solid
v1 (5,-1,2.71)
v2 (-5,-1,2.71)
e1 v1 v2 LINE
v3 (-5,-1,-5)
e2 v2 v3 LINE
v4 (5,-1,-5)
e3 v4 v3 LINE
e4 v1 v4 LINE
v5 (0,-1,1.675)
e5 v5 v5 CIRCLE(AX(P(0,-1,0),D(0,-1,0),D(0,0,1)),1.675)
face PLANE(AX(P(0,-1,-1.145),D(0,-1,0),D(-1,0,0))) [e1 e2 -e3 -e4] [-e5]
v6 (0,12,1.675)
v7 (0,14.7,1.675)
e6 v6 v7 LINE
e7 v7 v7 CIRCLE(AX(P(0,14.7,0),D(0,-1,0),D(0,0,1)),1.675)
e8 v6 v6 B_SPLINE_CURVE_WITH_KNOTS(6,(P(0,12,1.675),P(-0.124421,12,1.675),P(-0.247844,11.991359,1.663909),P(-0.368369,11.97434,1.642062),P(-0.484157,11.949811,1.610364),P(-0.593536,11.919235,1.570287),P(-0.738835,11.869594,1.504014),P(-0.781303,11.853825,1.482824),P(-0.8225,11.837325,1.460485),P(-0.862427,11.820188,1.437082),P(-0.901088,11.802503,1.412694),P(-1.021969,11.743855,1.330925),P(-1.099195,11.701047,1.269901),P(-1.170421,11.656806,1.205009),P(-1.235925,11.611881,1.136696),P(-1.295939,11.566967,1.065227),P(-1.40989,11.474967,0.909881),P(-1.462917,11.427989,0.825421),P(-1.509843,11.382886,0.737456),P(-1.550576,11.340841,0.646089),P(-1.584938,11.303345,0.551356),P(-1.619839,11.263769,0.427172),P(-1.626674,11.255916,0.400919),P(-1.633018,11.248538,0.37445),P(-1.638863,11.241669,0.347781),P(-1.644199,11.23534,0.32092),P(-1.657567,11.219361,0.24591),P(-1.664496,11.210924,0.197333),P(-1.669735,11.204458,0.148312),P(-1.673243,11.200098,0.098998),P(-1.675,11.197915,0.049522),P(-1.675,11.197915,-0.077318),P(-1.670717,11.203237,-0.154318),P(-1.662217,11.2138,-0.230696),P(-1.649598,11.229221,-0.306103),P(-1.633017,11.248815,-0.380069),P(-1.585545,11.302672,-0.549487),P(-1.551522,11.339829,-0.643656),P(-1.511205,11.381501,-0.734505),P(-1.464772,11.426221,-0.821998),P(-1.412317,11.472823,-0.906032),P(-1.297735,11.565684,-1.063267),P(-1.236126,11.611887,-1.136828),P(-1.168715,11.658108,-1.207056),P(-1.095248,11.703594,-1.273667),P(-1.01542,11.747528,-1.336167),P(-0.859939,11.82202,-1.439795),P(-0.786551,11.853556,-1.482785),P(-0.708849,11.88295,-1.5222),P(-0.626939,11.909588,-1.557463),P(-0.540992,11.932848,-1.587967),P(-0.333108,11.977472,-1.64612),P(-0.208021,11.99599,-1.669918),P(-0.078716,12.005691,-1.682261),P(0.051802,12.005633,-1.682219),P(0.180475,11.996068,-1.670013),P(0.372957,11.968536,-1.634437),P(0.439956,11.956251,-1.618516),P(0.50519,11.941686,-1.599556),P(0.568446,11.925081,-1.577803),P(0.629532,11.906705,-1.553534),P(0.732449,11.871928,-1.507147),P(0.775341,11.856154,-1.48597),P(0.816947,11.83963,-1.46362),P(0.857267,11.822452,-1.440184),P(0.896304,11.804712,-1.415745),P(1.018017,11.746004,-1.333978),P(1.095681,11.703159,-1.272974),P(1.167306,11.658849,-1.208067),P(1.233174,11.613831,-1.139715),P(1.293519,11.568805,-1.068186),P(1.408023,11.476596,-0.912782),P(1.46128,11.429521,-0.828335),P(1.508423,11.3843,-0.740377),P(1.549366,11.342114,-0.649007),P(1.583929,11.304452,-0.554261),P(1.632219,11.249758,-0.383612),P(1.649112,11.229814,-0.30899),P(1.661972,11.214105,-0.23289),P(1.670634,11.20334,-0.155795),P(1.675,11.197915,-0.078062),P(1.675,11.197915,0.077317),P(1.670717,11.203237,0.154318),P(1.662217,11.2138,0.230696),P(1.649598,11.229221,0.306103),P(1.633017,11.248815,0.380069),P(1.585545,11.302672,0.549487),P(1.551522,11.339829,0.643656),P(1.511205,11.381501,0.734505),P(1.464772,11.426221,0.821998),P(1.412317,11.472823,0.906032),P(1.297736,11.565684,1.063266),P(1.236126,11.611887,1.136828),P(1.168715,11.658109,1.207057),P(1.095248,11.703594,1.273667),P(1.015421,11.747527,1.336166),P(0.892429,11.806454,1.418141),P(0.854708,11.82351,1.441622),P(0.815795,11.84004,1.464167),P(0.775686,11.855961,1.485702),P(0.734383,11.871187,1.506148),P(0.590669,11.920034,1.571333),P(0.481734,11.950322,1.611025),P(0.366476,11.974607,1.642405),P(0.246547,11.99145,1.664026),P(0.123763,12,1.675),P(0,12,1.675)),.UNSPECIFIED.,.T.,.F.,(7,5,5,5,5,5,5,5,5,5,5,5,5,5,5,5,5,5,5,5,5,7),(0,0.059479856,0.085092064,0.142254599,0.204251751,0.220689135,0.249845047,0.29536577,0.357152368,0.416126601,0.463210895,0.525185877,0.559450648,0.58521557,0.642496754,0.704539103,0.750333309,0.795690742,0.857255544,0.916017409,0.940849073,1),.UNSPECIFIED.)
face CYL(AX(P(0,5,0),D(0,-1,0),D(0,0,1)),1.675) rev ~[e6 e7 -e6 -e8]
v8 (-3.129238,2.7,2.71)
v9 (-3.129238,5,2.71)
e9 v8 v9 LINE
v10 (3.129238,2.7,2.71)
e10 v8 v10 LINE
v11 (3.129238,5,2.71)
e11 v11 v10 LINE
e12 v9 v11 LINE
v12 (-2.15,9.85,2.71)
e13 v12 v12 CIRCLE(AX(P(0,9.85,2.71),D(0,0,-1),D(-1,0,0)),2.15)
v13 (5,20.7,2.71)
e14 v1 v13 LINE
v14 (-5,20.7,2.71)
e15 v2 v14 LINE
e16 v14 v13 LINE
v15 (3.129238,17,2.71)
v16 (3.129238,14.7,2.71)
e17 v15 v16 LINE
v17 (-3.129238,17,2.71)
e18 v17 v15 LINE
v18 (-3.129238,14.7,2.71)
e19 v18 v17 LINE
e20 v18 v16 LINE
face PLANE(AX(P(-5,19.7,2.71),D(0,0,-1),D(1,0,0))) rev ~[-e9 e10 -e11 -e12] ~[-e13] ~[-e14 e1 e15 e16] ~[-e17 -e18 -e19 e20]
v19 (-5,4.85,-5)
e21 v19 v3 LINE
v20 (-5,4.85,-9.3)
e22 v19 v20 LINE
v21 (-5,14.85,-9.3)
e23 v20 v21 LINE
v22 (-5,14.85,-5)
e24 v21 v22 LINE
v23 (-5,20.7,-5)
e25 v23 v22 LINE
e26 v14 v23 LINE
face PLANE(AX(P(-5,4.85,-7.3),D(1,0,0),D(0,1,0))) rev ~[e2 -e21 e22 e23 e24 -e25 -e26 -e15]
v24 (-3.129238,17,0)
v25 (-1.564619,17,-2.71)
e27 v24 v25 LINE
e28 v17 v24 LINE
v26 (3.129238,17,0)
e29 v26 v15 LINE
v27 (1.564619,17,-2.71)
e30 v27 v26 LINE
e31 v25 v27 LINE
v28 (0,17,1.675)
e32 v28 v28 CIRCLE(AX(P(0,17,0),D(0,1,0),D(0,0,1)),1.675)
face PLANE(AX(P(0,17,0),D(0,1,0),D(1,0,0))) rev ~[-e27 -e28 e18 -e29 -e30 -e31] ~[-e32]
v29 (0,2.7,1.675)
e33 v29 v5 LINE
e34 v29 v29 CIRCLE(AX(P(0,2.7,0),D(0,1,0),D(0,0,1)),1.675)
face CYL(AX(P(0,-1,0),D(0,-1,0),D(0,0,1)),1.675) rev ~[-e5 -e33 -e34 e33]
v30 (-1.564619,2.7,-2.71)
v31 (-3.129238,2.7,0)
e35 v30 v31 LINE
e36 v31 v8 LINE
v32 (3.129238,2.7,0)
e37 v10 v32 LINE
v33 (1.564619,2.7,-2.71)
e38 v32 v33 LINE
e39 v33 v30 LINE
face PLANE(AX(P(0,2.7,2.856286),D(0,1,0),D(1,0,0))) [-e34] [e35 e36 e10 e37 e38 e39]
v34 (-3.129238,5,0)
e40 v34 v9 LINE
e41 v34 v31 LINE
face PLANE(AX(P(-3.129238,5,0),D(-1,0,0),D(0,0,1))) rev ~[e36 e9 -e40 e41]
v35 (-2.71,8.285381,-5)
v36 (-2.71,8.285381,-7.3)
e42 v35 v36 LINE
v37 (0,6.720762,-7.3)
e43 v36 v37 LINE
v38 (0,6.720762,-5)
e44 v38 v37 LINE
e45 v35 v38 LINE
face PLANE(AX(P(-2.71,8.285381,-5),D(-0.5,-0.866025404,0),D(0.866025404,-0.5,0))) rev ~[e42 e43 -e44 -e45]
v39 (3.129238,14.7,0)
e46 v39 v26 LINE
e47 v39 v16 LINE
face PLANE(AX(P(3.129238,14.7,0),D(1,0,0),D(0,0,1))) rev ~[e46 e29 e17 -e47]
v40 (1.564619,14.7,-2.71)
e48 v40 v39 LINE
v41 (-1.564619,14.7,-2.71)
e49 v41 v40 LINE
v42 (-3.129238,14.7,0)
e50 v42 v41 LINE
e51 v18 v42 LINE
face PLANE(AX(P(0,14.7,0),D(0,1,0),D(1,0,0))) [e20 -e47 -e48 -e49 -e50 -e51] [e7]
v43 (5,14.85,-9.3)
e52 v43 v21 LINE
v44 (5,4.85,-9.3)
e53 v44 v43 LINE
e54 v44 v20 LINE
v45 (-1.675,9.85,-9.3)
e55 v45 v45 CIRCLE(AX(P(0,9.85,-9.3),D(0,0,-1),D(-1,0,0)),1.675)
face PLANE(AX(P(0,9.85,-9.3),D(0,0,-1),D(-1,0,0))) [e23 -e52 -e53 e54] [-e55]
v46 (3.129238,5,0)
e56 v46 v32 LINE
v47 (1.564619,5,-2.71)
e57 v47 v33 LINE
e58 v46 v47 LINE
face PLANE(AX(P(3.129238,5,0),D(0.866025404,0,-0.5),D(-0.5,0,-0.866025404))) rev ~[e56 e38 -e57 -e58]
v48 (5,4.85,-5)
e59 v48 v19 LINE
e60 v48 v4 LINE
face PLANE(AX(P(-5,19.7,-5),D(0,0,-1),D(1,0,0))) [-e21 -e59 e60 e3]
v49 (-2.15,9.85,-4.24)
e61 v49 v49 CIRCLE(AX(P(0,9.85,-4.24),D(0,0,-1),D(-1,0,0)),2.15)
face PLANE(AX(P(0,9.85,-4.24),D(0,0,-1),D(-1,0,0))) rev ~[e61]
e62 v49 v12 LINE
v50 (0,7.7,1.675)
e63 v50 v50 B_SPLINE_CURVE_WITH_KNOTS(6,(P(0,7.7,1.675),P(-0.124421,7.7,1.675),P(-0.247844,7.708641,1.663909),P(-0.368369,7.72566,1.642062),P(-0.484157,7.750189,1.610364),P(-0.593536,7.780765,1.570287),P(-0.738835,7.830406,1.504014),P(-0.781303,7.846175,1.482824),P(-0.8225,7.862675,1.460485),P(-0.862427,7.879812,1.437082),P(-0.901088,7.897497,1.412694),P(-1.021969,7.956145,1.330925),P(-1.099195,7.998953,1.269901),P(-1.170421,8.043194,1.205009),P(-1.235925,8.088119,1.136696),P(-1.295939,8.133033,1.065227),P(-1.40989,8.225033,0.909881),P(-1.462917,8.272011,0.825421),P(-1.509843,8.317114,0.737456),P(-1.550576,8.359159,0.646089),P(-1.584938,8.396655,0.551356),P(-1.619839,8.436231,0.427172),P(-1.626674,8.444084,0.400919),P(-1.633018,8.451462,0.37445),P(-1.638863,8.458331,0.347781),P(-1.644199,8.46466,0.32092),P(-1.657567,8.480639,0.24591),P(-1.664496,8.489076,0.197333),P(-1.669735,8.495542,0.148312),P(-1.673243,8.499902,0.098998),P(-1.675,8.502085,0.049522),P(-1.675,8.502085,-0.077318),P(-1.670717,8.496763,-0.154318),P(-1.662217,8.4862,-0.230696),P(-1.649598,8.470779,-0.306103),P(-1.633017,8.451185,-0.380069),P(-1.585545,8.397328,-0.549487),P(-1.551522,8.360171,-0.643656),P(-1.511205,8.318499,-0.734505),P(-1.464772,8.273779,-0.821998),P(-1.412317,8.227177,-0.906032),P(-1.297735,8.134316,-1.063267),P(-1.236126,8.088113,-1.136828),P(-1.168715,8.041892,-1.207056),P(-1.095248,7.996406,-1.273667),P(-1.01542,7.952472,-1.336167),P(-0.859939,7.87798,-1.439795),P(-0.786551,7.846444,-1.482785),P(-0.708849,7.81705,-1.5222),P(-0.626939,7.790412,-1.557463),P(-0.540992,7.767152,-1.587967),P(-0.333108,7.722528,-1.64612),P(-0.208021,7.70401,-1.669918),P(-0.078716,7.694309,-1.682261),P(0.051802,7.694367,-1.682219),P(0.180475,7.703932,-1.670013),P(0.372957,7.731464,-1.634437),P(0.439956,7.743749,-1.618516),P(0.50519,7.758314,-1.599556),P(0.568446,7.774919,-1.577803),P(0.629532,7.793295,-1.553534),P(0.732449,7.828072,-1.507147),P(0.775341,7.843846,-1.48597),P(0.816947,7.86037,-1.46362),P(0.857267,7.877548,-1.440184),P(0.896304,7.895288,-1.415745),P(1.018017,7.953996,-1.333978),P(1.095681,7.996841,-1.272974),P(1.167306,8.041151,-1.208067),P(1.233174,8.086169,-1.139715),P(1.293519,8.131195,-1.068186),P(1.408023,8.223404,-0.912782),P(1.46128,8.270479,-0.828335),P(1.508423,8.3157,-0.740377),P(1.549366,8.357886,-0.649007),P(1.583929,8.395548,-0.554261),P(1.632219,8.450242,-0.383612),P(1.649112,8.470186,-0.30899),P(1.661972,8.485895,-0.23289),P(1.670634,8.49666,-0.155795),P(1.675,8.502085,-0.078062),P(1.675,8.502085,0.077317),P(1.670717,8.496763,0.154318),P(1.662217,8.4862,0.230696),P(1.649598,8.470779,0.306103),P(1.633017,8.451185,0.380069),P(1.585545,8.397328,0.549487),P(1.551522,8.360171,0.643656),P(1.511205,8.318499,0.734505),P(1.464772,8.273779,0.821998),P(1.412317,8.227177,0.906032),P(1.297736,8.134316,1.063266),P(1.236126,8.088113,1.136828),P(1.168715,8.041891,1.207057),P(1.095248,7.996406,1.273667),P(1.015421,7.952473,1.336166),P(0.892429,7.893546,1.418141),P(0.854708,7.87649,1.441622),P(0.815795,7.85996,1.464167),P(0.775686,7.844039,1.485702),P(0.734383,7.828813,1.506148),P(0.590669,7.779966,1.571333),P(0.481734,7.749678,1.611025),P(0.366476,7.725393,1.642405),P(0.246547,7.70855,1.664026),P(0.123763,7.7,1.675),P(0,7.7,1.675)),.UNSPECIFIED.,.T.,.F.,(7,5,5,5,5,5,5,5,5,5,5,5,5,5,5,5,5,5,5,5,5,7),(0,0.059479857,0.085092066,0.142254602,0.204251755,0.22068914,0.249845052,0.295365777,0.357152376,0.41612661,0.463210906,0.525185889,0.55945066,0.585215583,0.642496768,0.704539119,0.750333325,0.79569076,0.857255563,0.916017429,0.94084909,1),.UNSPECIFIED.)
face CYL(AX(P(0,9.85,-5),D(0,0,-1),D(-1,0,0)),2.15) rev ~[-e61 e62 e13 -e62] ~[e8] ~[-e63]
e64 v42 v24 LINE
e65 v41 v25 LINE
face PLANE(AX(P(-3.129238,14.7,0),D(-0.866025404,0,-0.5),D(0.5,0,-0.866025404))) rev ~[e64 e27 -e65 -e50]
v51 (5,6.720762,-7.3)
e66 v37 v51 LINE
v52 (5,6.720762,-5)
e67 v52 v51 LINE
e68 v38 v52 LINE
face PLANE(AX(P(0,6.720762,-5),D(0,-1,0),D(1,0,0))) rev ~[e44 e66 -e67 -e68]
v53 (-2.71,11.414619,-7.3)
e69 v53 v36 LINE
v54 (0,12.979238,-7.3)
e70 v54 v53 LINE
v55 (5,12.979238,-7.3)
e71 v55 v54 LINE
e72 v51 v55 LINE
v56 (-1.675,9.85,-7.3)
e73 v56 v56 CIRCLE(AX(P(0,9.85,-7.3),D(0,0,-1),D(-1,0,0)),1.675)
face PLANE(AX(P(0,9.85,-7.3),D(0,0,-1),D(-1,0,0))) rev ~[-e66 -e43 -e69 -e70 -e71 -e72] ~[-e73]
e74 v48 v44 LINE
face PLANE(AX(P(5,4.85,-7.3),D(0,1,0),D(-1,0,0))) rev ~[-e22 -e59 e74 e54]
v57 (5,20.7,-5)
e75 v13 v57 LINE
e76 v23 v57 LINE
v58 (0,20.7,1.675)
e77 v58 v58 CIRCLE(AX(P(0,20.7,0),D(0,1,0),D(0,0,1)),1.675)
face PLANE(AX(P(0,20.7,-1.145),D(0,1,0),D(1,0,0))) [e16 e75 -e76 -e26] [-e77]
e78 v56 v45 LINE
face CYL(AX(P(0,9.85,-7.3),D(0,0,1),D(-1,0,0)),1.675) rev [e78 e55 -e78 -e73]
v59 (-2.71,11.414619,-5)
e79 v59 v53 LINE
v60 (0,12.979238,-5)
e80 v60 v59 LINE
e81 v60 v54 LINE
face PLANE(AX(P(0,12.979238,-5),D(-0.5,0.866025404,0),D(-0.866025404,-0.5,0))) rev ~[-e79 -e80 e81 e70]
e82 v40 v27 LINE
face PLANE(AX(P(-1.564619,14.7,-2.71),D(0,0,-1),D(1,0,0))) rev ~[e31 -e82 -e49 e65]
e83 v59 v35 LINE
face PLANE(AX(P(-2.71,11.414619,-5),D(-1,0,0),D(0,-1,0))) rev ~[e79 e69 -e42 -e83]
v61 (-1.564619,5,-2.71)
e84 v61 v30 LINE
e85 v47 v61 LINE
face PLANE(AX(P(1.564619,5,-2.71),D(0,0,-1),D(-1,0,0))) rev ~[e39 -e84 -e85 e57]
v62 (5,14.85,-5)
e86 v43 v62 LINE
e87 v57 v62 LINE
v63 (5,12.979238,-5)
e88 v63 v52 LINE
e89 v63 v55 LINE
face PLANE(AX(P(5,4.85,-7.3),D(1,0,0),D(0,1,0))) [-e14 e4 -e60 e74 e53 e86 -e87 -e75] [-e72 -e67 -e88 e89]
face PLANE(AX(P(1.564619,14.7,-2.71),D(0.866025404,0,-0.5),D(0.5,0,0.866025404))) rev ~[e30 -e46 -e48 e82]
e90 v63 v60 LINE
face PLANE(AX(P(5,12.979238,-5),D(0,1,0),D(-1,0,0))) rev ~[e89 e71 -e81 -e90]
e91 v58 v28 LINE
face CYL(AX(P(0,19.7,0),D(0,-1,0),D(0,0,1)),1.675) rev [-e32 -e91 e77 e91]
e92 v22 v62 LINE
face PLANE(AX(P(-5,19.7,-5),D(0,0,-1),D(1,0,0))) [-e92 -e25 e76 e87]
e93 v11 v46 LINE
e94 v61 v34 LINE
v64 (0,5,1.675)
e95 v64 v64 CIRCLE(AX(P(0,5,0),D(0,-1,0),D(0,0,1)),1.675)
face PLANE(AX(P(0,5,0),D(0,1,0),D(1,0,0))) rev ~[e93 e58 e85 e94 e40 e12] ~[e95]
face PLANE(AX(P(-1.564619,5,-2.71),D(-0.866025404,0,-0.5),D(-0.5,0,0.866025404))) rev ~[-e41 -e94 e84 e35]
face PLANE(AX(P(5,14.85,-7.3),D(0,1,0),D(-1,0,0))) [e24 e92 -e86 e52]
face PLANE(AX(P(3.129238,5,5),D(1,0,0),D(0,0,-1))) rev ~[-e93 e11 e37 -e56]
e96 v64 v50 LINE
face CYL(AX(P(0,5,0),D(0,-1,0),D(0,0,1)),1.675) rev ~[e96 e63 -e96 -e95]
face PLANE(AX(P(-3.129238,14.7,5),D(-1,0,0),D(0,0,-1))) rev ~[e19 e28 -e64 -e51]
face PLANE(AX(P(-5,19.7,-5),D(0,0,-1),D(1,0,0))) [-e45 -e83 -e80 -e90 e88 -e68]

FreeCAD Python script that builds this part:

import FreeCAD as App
import Part
import Sketcher
Q = App.Units.Quantity


def add_polygon(sketch, points):
    """Adds a closed chain of lines whose ends are joined by coincident constraints."""
    first, n = sketch.GeometryCount, len(points)
    for a, b in zip(points, points[1:] + points[:1]):
        sketch.addGeometry(Part.LineSegment(App.Vector(*a, 0), App.Vector(*b, 0)), False)
    for i in range(n):
        sketch.addConstraint(Sketcher.Constraint("Coincident", first + i, 2, first + (i + 1) % n, 1))

doc = App.newDocument("Part")
params = doc.addObject("Spreadsheet::Sheet", "Params")
for row, (alias, value) in enumerate([
    ("sketch1_width", "10 mm"),
    ("pad1_length", "5 mm"),
    ("sketch2_diameter", "3.35 mm"),
    ("sketch3_diameter", "3.35 mm"),
    ("sketch3_height", "5 mm"),
    ("pocket2_length", "2.3 mm"),
    ("sketch4_width", "10 mm"),
    ("pad2_length", "2.7 mm"),
    ("sketch5_width", "10 mm"),
    ("pad3_length", "7 mm"),
    ("sketch6_diameter", "4.3 mm"),
    ("sketch7_diameter", "3.35 mm"),
    ("sketch8_width", "10 mm"),
    ("pad4_length", "2.3 mm"),
    ("sketch9_width", "10 mm"),
    ("pad5_length", "2.7 mm"),
    ("sketch10_diameter", "3.35 mm"),
    ("pocket5_length", "2.7 mm"),
    ("sketch11_width", "10 mm"),
    ("sketch11_height", "19.7 mm"),
    ("pocket6_length", "2.29 mm"),
    ("sketch12_diameter", "3.35 mm"),
    ("sketch12_width", "10 mm"),
    ("sketch12_height", "7.71 mm"),
    ("pad6_length", "1 mm"),
    ("sketch13_diameter", "3.35 mm"),
    ("sketch13_width", "10 mm"),
    ("sketch13_height", "7.71 mm"),
    ("pad7_length", "1 mm"),
    ("sketch14_diameter", "4.3 mm"),
    ("pad8_length", "0.76 mm"),
    ("sketch15_width", "5 mm"),
    ("sketch15_width2", "10 mm"),
    ("pad9_length", "2.3 mm"),
    ("sketch16_diameter", "3.35 mm"),
    ("sketch16_width", "10 mm"),
    ("pad10_length", "2 mm"),
], start=1):
    params.set(f"A{row}", alias)
    params.set(f"B{row}", "=" + value)
    params.setAlias(f"B{row}", alias)

body = doc.addObject("PartDesign::Body", "Body")

# Sketch on XZ plane
sketch1 = body.newObject("Sketcher::SketchObject", "Sketch")
sketch1.AttachmentSupport = (doc.getObject("XZ_Plane"), [""])
sketch1.MapMode = "FlatFace"
add_polygon(sketch1, [(-5, -5), (-5, 5), (5, 5), (5, -5)])  # lines 0-3
sketch1.addConstraint(Sketcher.Constraint("Vertical", 0))
sketch1.addConstraint(Sketcher.Constraint("Horizontal", 1))
sketch1.addConstraint(Sketcher.Constraint("Vertical", 2))
sketch1.addConstraint(Sketcher.Constraint("Horizontal", 3))
sketch1.addConstraint(Sketcher.Constraint("Symmetric", 0, 2, 2, 2, -1, 1))
sketch1.addConstraint(Sketcher.Constraint("Equal", 3, 0))
sketch1.addConstraint(Sketcher.Constraint("DistanceX", 1, 1, 1, 2, 10.0))
sketch1.setExpression("Constraints[10]", "Params.sketch1_width")
pad1 = body.newObject("PartDesign::Pad", "Pad")
pad1.Profile = sketch1
pad1.setExpression("Length", "Params.pad1_length")
pad1.Reversed = True

# Sketch on XZ plane
sketch2 = body.newObject("Sketcher::SketchObject", "Sketch001")
sketch2.AttachmentSupport = (doc.getObject("XZ_Plane"), [""])
sketch2.MapMode = "FlatFace"
sketch2.AttachmentOffset = App.Placement(App.Vector(0, 0, -5), App.Rotation())
sketch2.addGeometry(Part.Circle(App.Vector(0, 0, 0), App.Vector(0, 0, 1), 1.7), False)
sketch2.addConstraint(Sketcher.Constraint("Coincident", 0, 3, -1, 1))
sketch2.addConstraint(Sketcher.Constraint("Diameter", 0, 3.35))
sketch2.setExpression("Constraints[1]", "Params.sketch2_diameter")
pocket1 = body.newObject("PartDesign::Pocket", "Pocket")
pocket1.Profile = sketch2
pocket1.Type = "ThroughAll"
pocket1.Midplane = True

# Sketch on XZ plane
sketch3 = body.newObject("Sketcher::SketchObject", "Sketch002")
sketch3.AttachmentSupport = (doc.getObject("XZ_Plane"), [""])
sketch3.MapMode = "FlatFace"
sketch3.AttachmentOffset = App.Placement(App.Vector(0, 0, -5), App.Rotation())
add_polygon(sketch3, [(-1.6, -2.7), (-3.1, 0), (-3.1, 5), (3.1, 5), (3.1, 0), (1.6, -2.7)])  # lines 0-5
sketch3.addGeometry(Part.Circle(App.Vector(0, 0, 0), App.Vector(0, 0, 1), 1.7), False)  # 6
sketch3.addConstraint(Sketcher.Constraint("Vertical", 1))
sketch3.addConstraint(Sketcher.Constraint("Horizontal", 2))
sketch3.addConstraint(Sketcher.Constraint("Vertical", 3))
sketch3.addConstraint(Sketcher.Constraint("Horizontal", 5))
sketch3.addConstraint(Sketcher.Constraint("Coincident", 6, 3, -1, 1))
sketch3.addConstraint(Sketcher.Constraint("Symmetric", 0, 2, 3, 2, -1, 1))
sketch3.addConstraint(Sketcher.Constraint("PointOnObject", 0, 2, -1))
sketch3.addConstraint(Sketcher.Constraint("Equal", 0, 4))
sketch3.addConstraint(Sketcher.Constraint("Diameter", 6, 3.35))
sketch3.addConstraint(Sketcher.Constraint("DistanceY", 1, 1, 1, 2, 5.0))
sketch3.addConstraint(Sketcher.Constraint("Angle", 0, Q("120 deg")))
sketch3.addConstraint(Sketcher.Constraint("DistanceY", 4, 2, -1, 1, 2.71))
sketch3.addConstraint(Sketcher.Constraint("DistanceX", 5, 2, 5, 1, 3.129238))
sketch3.setExpression("Constraints[14]", "Params.sketch3_diameter")
sketch3.setExpression("Constraints[15]", "Params.sketch3_height")
pocket2 = body.newObject("PartDesign::Pocket", "Pocket001")
pocket2.Profile = sketch3
pocket2.setExpression("Length", "Params.pocket2_length")
pocket2.Reversed = True

# Sketch on XZ plane
sketch4 = body.newObject("Sketcher::SketchObject", "Sketch003")
sketch4.AttachmentSupport = (doc.getObject("XZ_Plane"), [""])
sketch4.MapMode = "FlatFace"
sketch4.AttachmentOffset = App.Placement(App.Vector(0, 0, -5), App.Rotation())
add_polygon(sketch4, [(-5, -5), (-5, 5), (5, 5), (5, -5)])  # lines 0-3
sketch4.addConstraint(Sketcher.Constraint("Vertical", 0))
sketch4.addConstraint(Sketcher.Constraint("Horizontal", 1))
sketch4.addConstraint(Sketcher.Constraint("Vertical", 2))
sketch4.addConstraint(Sketcher.Constraint("Horizontal", 3))
sketch4.addConstraint(Sketcher.Constraint("Symmetric", 0, 2, 2, 2, -1, 1))
sketch4.addConstraint(Sketcher.Constraint("Equal", 3, 0))
sketch4.addConstraint(Sketcher.Constraint("DistanceX", 1, 1, 1, 2, 10.0))
sketch4.setExpression("Constraints[10]", "Params.sketch4_width")
pad2 = body.newObject("PartDesign::Pad", "Pad001")
pad2.Profile = sketch4
pad2.setExpression("Length", "Params.pad2_length")
pad2.Reversed = True

# Sketch on XZ plane
sketch5 = body.newObject("Sketcher::SketchObject", "Sketch004")
sketch5.AttachmentSupport = (doc.getObject("XZ_Plane"), [""])
sketch5.MapMode = "FlatFace"
sketch5.AttachmentOffset = App.Placement(App.Vector(0, 0, -7.7), App.Rotation())
add_polygon(sketch5, [(-5, -5), (-5, 5), (5, 5), (5, -5)])  # lines 0-3
sketch5.addConstraint(Sketcher.Constraint("Vertical", 0))
sketch5.addConstraint(Sketcher.Constraint("Horizontal", 1))
sketch5.addConstraint(Sketcher.Constraint("Vertical", 2))
sketch5.addConstraint(Sketcher.Constraint("Horizontal", 3))
sketch5.addConstraint(Sketcher.Constraint("Symmetric", 0, 2, 2, 2, -1, 1))
sketch5.addConstraint(Sketcher.Constraint("Equal", 3, 0))
sketch5.addConstraint(Sketcher.Constraint("DistanceX", 1, 1, 1, 2, 10.0))
sketch5.setExpression("Constraints[10]", "Params.sketch5_width")
pad3 = body.newObject("PartDesign::Pad", "Pad002")
pad3.Profile = sketch5
pad3.setExpression("Length", "Params.pad3_length")
pad3.Reversed = True

# Sketch on XY plane
sketch6 = body.newObject("Sketcher::SketchObject", "Sketch005")
sketch6.AttachmentSupport = (doc.getObject("XY_Plane"), [""])
sketch6.MapMode = "FlatFace"
sketch6.AttachmentOffset = App.Placement(App.Vector(0, 0, -5), App.Rotation())
sketch6.addGeometry(Part.Circle(App.Vector(0, 9.8, 0), App.Vector(0, 0, 1), 2.1), False)
sketch6.addConstraint(Sketcher.Constraint("PointOnObject", 0, 3, -2))
sketch6.addConstraint(Sketcher.Constraint("Diameter", 0, 4.3))
sketch6.addConstraint(Sketcher.Constraint("DistanceY", -1, 1, 0, 3, 9.85))
sketch6.setExpression("Constraints[1]", "Params.sketch6_diameter")
pocket3 = body.newObject("PartDesign::Pocket", "Pocket002")
pocket3.Profile = sketch6
pocket3.Type = "ThroughAll"
pocket3.Reversed = True

# Sketch on XZ plane
sketch7 = body.newObject("Sketcher::SketchObject", "Sketch006")
sketch7.AttachmentSupport = (doc.getObject("XZ_Plane"), [""])
sketch7.MapMode = "FlatFace"
sketch7.AttachmentOffset = App.Placement(App.Vector(0, 0, -5), App.Rotation())
sketch7.addGeometry(Part.Circle(App.Vector(0, 0, 0), App.Vector(0, 0, 1), 1.7), False)
sketch7.addConstraint(Sketcher.Constraint("Coincident", 0, 3, -1, 1))
sketch7.addConstraint(Sketcher.Constraint("Diameter", 0, 3.35))
sketch7.setExpression("Constraints[1]", "Params.sketch7_diameter")
pocket4 = body.newObject("PartDesign::Pocket", "Pocket003")
pocket4.Profile = sketch7
pocket4.Type = "ThroughAll"

# Sketch on XZ plane
sketch8 = body.newObject("Sketcher::SketchObject", "Sketch007")
sketch8.AttachmentSupport = (doc.getObject("XZ_Plane"), [""])
sketch8.MapMode = "FlatFace"
sketch8.AttachmentOffset = App.Placement(App.Vector(0, 0, -14.7), App.Rotation())
add_polygon(sketch8, [(1.6, -2.7), (3.1, 0), (3.1, 5), (5, 5), (5, -5), (-5, -5), (-5, 5), (-3.1, 5), (-3.1, 0), (-1.6, -2.7)])  # lines 0-9
sketch8.addConstraint(Sketcher.Constraint("Vertical", 1))
sketch8.addConstraint(Sketcher.Constraint("Horizontal", 2))
sketch8.addConstraint(Sketcher.Constraint("Vertical", 3))
sketch8.addConstraint(Sketcher.Constraint("Horizontal", 4))
sketch8.addConstraint(Sketcher.Constraint("Vertical", 5))
sketch8.addConstraint(Sketcher.Constraint("Horizontal", 6))
sketch8.addConstraint(Sketcher.Constraint("Vertical", 7))
sketch8.addConstraint(Sketcher.Constraint("Horizontal", 9))
sketch8.addConstraint(Sketcher.Constraint("Symmetric", 2, 2, 4, 2, -1, 1))
sketch8.addConstraint(Sketcher.Constraint("Symmetric", 0, 2, 7, 2, -1, 1))
sketch8.addConstraint(Sketcher.Constraint("PointOnObject", 0, 2, -1))
sketch8.addConstraint(Sketcher.Constraint("Horizontal", 2, 2, 5, 2))
sketch8.addConstraint(Sketcher.Constraint("Equal", 4, 3))
sketch8.addConstraint(Sketcher.Constraint("Equal", 0, 8))
sketch8.addConstraint(Sketcher.Constraint("DistanceX", 4, 2, 4, 1, 10.0))
sketch8.addConstraint(Sketcher.Constraint("Angle", 0, Q("60 deg")))
sketch8.addConstraint(Sketcher.Constraint("DistanceY", 8, 2, -1, 1, 2.71))
sketch8.addConstraint(Sketcher.Constraint("DistanceX", 2, 1, 2, 2, 1.870762))
sketch8.setExpression("Constraints[24]", "Params.sketch8_width")
pad4 = body.newObject("PartDesign::Pad", "Pad003")
pad4.Profile = sketch8
pad4.setExpression("Length", "Params.pad4_length")
pad4.Reversed = True

# Sketch on XZ plane
sketch9 = body.newObject("Sketcher::SketchObject", "Sketch008")
sketch9.AttachmentSupport = (doc.getObject("XZ_Plane"), [""])
sketch9.MapMode = "FlatFace"
sketch9.AttachmentOffset = App.Placement(App.Vector(0, 0, -17), App.Rotation())
add_polygon(sketch9, [(-5, -5), (-5, 5), (5, 5), (5, -5)])  # lines 0-3
sketch9.addConstraint(Sketcher.Constraint("Vertical", 0))
sketch9.addConstraint(Sketcher.Constraint("Horizontal", 1))
sketch9.addConstraint(Sketcher.Constraint("Vertical", 2))
sketch9.addConstraint(Sketcher.Constraint("Horizontal", 3))
sketch9.addConstraint(Sketcher.Constraint("Symmetric", 0, 2, 2, 2, -1, 1))
sketch9.addConstraint(Sketcher.Constraint("Equal", 3, 0))
sketch9.addConstraint(Sketcher.Constraint("DistanceX", 1, 1, 1, 2, 10.0))
sketch9.setExpression("Constraints[10]", "Params.sketch9_width")
pad5 = body.newObject("PartDesign::Pad", "Pad004")
pad5.Profile = sketch9
pad5.setExpression("Length", "Params.pad5_length")
pad5.Reversed = True

# Sketch on XZ plane
sketch10 = body.newObject("Sketcher::SketchObject", "Sketch009")
sketch10.AttachmentSupport = (doc.getObject("XZ_Plane"), [""])
sketch10.MapMode = "FlatFace"
sketch10.AttachmentOffset = App.Placement(App.Vector(0, 0, -17), App.Rotation())
sketch10.addGeometry(Part.Circle(App.Vector(0, 0, 0), App.Vector(0, 0, 1), 1.7), False)
sketch10.addConstraint(Sketcher.Constraint("Coincident", 0, 3, -1, 1))
sketch10.addConstraint(Sketcher.Constraint("Diameter", 0, 3.35))
sketch10.setExpression("Constraints[1]", "Params.sketch10_diameter")
pocket5 = body.newObject("PartDesign::Pocket", "Pocket004")
pocket5.Profile = sketch10
pocket5.setExpression("Length", "Params.pocket5_length")

# Sketch on XY plane
sketch11 = body.newObject("Sketcher::SketchObject", "Sketch010")
sketch11.AttachmentSupport = (doc.getObject("XY_Plane"), [""])
sketch11.MapMode = "FlatFace"
sketch11.AttachmentOffset = App.Placement(App.Vector(0, 0, 5), App.Rotation())
add_polygon(sketch11, [(-5, 20), (-5, 0), (5, 0), (5, 20)])  # lines 0-3
sketch11.addConstraint(Sketcher.Constraint("Vertical", 0))
sketch11.addConstraint(Sketcher.Constraint("Horizontal", 1))
sketch11.addConstraint(Sketcher.Constraint("Vertical", 2))
sketch11.addConstraint(Sketcher.Constraint("Horizontal", 3))
sketch11.addConstraint(Sketcher.Constraint("Symmetric", 0, 2, 1, 2, -1, 1))
sketch11.addConstraint(Sketcher.Constraint("DistanceX", 1, 1, 1, 2, 10.0))
sketch11.addConstraint(Sketcher.Constraint("DistanceY", 0, 2, 0, 1, 19.7))
sketch11.setExpression("Constraints[9]", "Params.sketch11_width")
sketch11.setExpression("Constraints[10]", "Params.sketch11_height")
pocket6 = body.newObject("PartDesign::Pocket", "Pocket005")
pocket6.Profile = sketch11
pocket6.setExpression("Length", "Params.pocket6_length")

# Sketch on XZ plane
sketch12 = body.newObject("Sketcher::SketchObject", "Sketch011")
sketch12.AttachmentSupport = (doc.getObject("XZ_Plane"), [""])
sketch12.MapMode = "FlatFace"
sketch12.AttachmentOffset = App.Placement(App.Vector(0, 0, 1), App.Rotation())
add_polygon(sketch12, [(5, -5), (5, 2.7), (-5, 2.7), (-5, -5)])  # lines 0-3
sketch12.addGeometry(Part.Circle(App.Vector(0, 0, 0), App.Vector(0, 0, 1), 1.7), False)  # 4
sketch12.addConstraint(Sketcher.Constraint("Vertical", 0))
sketch12.addConstraint(Sketcher.Constraint("Horizontal", 1))
sketch12.addConstraint(Sketcher.Constraint("Vertical", 2))
sketch12.addConstraint(Sketcher.Constraint("Horizontal", 3))
sketch12.addConstraint(Sketcher.Constraint("Coincident", 4, 3, -1, 1))
sketch12.addConstraint(Sketcher.Constraint("Diameter", 4, 3.35))
sketch12.addConstraint(Sketcher.Constraint("DistanceX", 1, 2, 1, 1, 10.0))
sketch12.addConstraint(Sketcher.Constraint("DistanceX", -1, 1, 0, 2, 5.0))
sketch12.addConstraint(Sketcher.Constraint("DistanceY", 2, 2, -1, 1, 5.0))
sketch12.addConstraint(Sketcher.Constraint("DistanceY", 0, 1, 0, 2, 7.71))
sketch12.setExpression("Constraints[9]", "Params.sketch12_diameter")
sketch12.setExpression("Constraints[10]", "Params.sketch12_width")
sketch12.setExpression("Constraints[13]", "Params.sketch12_height")
pad6 = body.newObject("PartDesign::Pad", "Pad005")
pad6.Profile = sketch12
pad6.setExpression("Length", "Params.pad6_length")
pad6.Reversed = True

# Sketch on XZ plane
sketch13 = body.newObject("Sketcher::SketchObject", "Sketch012")
sketch13.AttachmentSupport = (doc.getObject("XZ_Plane"), [""])
sketch13.MapMode = "FlatFace"
sketch13.AttachmentOffset = App.Placement(App.Vector(0, 0, -19.7), App.Rotation())
add_polygon(sketch13, [(-5, -5), (-5, 2.7), (5, 2.7), (5, -5)])  # lines 0-3
sketch13.addGeometry(Part.Circle(App.Vector(0, 0, 0), App.Vector(0, 0, 1), 1.7), False)  # 4
sketch13.addConstraint(Sketcher.Constraint("Vertical", 0))
sketch13.addConstraint(Sketcher.Constraint("Horizontal", 1))
sketch13.addConstraint(Sketcher.Constraint("Vertical", 2))
sketch13.addConstraint(Sketcher.Constraint("Horizontal", 3))
sketch13.addConstraint(Sketcher.Constraint("Coincident", 4, 3, -1, 1))
sketch13.addConstraint(Sketcher.Constraint("Diameter", 4, 3.35))
sketch13.addConstraint(Sketcher.Constraint("DistanceX", 1, 1, 1, 2, 10.0))
sketch13.addConstraint(Sketcher.Constraint("DistanceX", 0, 2, -1, 1, 5.0))
sketch13.addConstraint(Sketcher.Constraint("DistanceY", 2, 2, -1, 1, 5.0))
sketch13.addConstraint(Sketcher.Constraint("DistanceY", 0, 1, 0, 2, 7.71))
sketch13.setExpression("Constraints[9]", "Params.sketch13_diameter")
sketch13.setExpression("Constraints[10]", "Params.sketch13_width")
sketch13.setExpression("Constraints[13]", "Params.sketch13_height")
pad7 = body.newObject("PartDesign::Pad", "Pad006")
pad7.Profile = sketch13
pad7.setExpression("Length", "Params.pad7_length")
pad7.Reversed = True
body2 = doc.addObject("PartDesign::Body", "Body001")

# Sketch on XY plane
sketch14 = body2.newObject("Sketcher::SketchObject", "Sketch013")
sketch14.AttachmentSupport = (doc.getObject("XY_Plane001"), [""])
sketch14.MapMode = "FlatFace"
sketch14.AttachmentOffset = App.Placement(App.Vector(0, 0, -5), App.Rotation())
sketch14.addGeometry(Part.Circle(App.Vector(0, 9.8, 0), App.Vector(0, 0, 1), 2.1), False)
sketch14.addConstraint(Sketcher.Constraint("PointOnObject", 0, 3, -2))
sketch14.addConstraint(Sketcher.Constraint("Diameter", 0, 4.3))
sketch14.addConstraint(Sketcher.Constraint("DistanceY", -1, 1, 0, 3, 9.85))
sketch14.setExpression("Constraints[1]", "Params.sketch14_diameter")
pad8 = body2.newObject("PartDesign::Pad", "Pad007")
pad8.Profile = sketch14
pad8.setExpression("Length", "Params.pad8_length")
doc.recompute()

boolean = body2.newObject("PartDesign::Boolean", "Boolean")
boolean.Type = "Fuse"
boolean.addObjects([body])

# Sketch on XY plane
sketch15 = body2.newObject("Sketcher::SketchObject", "Sketch014")
sketch15.AttachmentSupport = (doc.getObject("XY_Plane001"), [""])
sketch15.MapMode = "FlatFace"
sketch15.AttachmentOffset = App.Placement(App.Vector(0, 0, -5), App.Rotation())
add_polygon(sketch15, [(5, 13), (0, 13), (-2.7, 11.4), (-2.7, 8.3), (0, 6.7), (5, 6.7), (5, 4.8), (-5, 4.8), (-5, 14.8), (5, 14.8)])  # lines 0-9
sketch15.addConstraint(Sketcher.Constraint("Horizontal", 0))
sketch15.addConstraint(Sketcher.Constraint("Vertical", 2))
sketch15.addConstraint(Sketcher.Constraint("Horizontal", 4))
sketch15.addConstraint(Sketcher.Constraint("Vertical", 5))
sketch15.addConstraint(Sketcher.Constraint("Horizontal", 6))
sketch15.addConstraint(Sketcher.Constraint("Vertical", 7))
sketch15.addConstraint(Sketcher.Constraint("Horizontal", 8))
sketch15.addConstraint(Sketcher.Constraint("Vertical", 9))
sketch15.addConstraint(Sketcher.Constraint("PointOnObject", 0, 2, -2))
sketch15.addConstraint(Sketcher.Constraint("PointOnObject", 3, 2, -2))
sketch15.addConstraint(Sketcher.Constraint("Vertical", 5, 2, 8, 2))
sketch15.addConstraint(Sketcher.Constraint("Equal", 8, 7))
sketch15.addConstraint(Sketcher.Constraint("Equal", 5, 9))
sketch15.addConstraint(Sketcher.Constraint("Equal", 1, 3))
sketch15.addConstraint(Sketcher.Constraint("DistanceX", 0, 2, 0, 1, 5.0))
sketch15.addConstraint(Sketcher.Constraint("DistanceX", 6, 2, 6, 1, 10.0))
sketch15.addConstraint(Sketcher.Constraint("Angle", 1, Q("-150 deg")))
sketch15.addConstraint(Sketcher.Constraint("DistanceX", 1, 2, -1, 1, 2.71))
sketch15.addConstraint(Sketcher.Constraint("DistanceY", -1, 1, 5, 2, 4.85))
sketch15.addConstraint(Sketcher.Constraint("DistanceY", 2, 2, 2, 1, 3.129238))
sketch15.setExpression("Constraints[24]", "Params.sketch15_width")
sketch15.setExpression("Constraints[25]", "Params.sketch15_width2")
pad9 = body2.newObject("PartDesign::Pad", "Pad008")
pad9.Profile = sketch15
pad9.setExpression("Length", "Params.pad9_length")
pad9.Reversed = True

# Sketch on XY plane
sketch16 = body2.newObject("Sketcher::SketchObject", "Sketch015")
sketch16.AttachmentSupport = (doc.getObject("XY_Plane001"), [""])
sketch16.MapMode = "FlatFace"
sketch16.AttachmentOffset = App.Placement(App.Vector(0, 0, -7.3), App.Rotation())
add_polygon(sketch16, [(5, 14.8), (5, 4.8), (-5, 4.8), (-5, 14.8)])  # lines 0-3
sketch16.addGeometry(Part.Circle(App.Vector(0, 9.8, 0), App.Vector(0, 0, 1), 1.7), False)  # 4
sketch16.addConstraint(Sketcher.Constraint("Vertical", 0))
sketch16.addConstraint(Sketcher.Constraint("Horizontal", 1))
sketch16.addConstraint(Sketcher.Constraint("Vertical", 2))
sketch16.addConstraint(Sketcher.Constraint("Horizontal", 3))
sketch16.addConstraint(Sketcher.Constraint("PointOnObject", 4, 3, -2))
sketch16.addConstraint(Sketcher.Constraint("Equal", 3, 0))
sketch16.addConstraint(Sketcher.Constraint("Diameter", 4, 3.35))
sketch16.addConstraint(Sketcher.Constraint("DistanceX", 1, 2, 1, 1, 10.0))
sketch16.addConstraint(Sketcher.Constraint("DistanceX", -1, 1, 0, 2, 5.0))
sketch16.addConstraint(Sketcher.Constraint("DistanceY", 0, 2, 4, 3, 5.0))
sketch16.addConstraint(Sketcher.Constraint("DistanceY", -1, 1, 4, 3, 9.85))
sketch16.setExpression("Constraints[10]", "Params.sketch16_diameter")
sketch16.setExpression("Constraints[11]", "Params.sketch16_width")
pad10 = body2.newObject("PartDesign::Pad", "Pad009")
pad10.Profile = sketch16
pad10.setExpression("Length", "Params.pad10_length")
pad10.Reversed = True

doc.recompute()
